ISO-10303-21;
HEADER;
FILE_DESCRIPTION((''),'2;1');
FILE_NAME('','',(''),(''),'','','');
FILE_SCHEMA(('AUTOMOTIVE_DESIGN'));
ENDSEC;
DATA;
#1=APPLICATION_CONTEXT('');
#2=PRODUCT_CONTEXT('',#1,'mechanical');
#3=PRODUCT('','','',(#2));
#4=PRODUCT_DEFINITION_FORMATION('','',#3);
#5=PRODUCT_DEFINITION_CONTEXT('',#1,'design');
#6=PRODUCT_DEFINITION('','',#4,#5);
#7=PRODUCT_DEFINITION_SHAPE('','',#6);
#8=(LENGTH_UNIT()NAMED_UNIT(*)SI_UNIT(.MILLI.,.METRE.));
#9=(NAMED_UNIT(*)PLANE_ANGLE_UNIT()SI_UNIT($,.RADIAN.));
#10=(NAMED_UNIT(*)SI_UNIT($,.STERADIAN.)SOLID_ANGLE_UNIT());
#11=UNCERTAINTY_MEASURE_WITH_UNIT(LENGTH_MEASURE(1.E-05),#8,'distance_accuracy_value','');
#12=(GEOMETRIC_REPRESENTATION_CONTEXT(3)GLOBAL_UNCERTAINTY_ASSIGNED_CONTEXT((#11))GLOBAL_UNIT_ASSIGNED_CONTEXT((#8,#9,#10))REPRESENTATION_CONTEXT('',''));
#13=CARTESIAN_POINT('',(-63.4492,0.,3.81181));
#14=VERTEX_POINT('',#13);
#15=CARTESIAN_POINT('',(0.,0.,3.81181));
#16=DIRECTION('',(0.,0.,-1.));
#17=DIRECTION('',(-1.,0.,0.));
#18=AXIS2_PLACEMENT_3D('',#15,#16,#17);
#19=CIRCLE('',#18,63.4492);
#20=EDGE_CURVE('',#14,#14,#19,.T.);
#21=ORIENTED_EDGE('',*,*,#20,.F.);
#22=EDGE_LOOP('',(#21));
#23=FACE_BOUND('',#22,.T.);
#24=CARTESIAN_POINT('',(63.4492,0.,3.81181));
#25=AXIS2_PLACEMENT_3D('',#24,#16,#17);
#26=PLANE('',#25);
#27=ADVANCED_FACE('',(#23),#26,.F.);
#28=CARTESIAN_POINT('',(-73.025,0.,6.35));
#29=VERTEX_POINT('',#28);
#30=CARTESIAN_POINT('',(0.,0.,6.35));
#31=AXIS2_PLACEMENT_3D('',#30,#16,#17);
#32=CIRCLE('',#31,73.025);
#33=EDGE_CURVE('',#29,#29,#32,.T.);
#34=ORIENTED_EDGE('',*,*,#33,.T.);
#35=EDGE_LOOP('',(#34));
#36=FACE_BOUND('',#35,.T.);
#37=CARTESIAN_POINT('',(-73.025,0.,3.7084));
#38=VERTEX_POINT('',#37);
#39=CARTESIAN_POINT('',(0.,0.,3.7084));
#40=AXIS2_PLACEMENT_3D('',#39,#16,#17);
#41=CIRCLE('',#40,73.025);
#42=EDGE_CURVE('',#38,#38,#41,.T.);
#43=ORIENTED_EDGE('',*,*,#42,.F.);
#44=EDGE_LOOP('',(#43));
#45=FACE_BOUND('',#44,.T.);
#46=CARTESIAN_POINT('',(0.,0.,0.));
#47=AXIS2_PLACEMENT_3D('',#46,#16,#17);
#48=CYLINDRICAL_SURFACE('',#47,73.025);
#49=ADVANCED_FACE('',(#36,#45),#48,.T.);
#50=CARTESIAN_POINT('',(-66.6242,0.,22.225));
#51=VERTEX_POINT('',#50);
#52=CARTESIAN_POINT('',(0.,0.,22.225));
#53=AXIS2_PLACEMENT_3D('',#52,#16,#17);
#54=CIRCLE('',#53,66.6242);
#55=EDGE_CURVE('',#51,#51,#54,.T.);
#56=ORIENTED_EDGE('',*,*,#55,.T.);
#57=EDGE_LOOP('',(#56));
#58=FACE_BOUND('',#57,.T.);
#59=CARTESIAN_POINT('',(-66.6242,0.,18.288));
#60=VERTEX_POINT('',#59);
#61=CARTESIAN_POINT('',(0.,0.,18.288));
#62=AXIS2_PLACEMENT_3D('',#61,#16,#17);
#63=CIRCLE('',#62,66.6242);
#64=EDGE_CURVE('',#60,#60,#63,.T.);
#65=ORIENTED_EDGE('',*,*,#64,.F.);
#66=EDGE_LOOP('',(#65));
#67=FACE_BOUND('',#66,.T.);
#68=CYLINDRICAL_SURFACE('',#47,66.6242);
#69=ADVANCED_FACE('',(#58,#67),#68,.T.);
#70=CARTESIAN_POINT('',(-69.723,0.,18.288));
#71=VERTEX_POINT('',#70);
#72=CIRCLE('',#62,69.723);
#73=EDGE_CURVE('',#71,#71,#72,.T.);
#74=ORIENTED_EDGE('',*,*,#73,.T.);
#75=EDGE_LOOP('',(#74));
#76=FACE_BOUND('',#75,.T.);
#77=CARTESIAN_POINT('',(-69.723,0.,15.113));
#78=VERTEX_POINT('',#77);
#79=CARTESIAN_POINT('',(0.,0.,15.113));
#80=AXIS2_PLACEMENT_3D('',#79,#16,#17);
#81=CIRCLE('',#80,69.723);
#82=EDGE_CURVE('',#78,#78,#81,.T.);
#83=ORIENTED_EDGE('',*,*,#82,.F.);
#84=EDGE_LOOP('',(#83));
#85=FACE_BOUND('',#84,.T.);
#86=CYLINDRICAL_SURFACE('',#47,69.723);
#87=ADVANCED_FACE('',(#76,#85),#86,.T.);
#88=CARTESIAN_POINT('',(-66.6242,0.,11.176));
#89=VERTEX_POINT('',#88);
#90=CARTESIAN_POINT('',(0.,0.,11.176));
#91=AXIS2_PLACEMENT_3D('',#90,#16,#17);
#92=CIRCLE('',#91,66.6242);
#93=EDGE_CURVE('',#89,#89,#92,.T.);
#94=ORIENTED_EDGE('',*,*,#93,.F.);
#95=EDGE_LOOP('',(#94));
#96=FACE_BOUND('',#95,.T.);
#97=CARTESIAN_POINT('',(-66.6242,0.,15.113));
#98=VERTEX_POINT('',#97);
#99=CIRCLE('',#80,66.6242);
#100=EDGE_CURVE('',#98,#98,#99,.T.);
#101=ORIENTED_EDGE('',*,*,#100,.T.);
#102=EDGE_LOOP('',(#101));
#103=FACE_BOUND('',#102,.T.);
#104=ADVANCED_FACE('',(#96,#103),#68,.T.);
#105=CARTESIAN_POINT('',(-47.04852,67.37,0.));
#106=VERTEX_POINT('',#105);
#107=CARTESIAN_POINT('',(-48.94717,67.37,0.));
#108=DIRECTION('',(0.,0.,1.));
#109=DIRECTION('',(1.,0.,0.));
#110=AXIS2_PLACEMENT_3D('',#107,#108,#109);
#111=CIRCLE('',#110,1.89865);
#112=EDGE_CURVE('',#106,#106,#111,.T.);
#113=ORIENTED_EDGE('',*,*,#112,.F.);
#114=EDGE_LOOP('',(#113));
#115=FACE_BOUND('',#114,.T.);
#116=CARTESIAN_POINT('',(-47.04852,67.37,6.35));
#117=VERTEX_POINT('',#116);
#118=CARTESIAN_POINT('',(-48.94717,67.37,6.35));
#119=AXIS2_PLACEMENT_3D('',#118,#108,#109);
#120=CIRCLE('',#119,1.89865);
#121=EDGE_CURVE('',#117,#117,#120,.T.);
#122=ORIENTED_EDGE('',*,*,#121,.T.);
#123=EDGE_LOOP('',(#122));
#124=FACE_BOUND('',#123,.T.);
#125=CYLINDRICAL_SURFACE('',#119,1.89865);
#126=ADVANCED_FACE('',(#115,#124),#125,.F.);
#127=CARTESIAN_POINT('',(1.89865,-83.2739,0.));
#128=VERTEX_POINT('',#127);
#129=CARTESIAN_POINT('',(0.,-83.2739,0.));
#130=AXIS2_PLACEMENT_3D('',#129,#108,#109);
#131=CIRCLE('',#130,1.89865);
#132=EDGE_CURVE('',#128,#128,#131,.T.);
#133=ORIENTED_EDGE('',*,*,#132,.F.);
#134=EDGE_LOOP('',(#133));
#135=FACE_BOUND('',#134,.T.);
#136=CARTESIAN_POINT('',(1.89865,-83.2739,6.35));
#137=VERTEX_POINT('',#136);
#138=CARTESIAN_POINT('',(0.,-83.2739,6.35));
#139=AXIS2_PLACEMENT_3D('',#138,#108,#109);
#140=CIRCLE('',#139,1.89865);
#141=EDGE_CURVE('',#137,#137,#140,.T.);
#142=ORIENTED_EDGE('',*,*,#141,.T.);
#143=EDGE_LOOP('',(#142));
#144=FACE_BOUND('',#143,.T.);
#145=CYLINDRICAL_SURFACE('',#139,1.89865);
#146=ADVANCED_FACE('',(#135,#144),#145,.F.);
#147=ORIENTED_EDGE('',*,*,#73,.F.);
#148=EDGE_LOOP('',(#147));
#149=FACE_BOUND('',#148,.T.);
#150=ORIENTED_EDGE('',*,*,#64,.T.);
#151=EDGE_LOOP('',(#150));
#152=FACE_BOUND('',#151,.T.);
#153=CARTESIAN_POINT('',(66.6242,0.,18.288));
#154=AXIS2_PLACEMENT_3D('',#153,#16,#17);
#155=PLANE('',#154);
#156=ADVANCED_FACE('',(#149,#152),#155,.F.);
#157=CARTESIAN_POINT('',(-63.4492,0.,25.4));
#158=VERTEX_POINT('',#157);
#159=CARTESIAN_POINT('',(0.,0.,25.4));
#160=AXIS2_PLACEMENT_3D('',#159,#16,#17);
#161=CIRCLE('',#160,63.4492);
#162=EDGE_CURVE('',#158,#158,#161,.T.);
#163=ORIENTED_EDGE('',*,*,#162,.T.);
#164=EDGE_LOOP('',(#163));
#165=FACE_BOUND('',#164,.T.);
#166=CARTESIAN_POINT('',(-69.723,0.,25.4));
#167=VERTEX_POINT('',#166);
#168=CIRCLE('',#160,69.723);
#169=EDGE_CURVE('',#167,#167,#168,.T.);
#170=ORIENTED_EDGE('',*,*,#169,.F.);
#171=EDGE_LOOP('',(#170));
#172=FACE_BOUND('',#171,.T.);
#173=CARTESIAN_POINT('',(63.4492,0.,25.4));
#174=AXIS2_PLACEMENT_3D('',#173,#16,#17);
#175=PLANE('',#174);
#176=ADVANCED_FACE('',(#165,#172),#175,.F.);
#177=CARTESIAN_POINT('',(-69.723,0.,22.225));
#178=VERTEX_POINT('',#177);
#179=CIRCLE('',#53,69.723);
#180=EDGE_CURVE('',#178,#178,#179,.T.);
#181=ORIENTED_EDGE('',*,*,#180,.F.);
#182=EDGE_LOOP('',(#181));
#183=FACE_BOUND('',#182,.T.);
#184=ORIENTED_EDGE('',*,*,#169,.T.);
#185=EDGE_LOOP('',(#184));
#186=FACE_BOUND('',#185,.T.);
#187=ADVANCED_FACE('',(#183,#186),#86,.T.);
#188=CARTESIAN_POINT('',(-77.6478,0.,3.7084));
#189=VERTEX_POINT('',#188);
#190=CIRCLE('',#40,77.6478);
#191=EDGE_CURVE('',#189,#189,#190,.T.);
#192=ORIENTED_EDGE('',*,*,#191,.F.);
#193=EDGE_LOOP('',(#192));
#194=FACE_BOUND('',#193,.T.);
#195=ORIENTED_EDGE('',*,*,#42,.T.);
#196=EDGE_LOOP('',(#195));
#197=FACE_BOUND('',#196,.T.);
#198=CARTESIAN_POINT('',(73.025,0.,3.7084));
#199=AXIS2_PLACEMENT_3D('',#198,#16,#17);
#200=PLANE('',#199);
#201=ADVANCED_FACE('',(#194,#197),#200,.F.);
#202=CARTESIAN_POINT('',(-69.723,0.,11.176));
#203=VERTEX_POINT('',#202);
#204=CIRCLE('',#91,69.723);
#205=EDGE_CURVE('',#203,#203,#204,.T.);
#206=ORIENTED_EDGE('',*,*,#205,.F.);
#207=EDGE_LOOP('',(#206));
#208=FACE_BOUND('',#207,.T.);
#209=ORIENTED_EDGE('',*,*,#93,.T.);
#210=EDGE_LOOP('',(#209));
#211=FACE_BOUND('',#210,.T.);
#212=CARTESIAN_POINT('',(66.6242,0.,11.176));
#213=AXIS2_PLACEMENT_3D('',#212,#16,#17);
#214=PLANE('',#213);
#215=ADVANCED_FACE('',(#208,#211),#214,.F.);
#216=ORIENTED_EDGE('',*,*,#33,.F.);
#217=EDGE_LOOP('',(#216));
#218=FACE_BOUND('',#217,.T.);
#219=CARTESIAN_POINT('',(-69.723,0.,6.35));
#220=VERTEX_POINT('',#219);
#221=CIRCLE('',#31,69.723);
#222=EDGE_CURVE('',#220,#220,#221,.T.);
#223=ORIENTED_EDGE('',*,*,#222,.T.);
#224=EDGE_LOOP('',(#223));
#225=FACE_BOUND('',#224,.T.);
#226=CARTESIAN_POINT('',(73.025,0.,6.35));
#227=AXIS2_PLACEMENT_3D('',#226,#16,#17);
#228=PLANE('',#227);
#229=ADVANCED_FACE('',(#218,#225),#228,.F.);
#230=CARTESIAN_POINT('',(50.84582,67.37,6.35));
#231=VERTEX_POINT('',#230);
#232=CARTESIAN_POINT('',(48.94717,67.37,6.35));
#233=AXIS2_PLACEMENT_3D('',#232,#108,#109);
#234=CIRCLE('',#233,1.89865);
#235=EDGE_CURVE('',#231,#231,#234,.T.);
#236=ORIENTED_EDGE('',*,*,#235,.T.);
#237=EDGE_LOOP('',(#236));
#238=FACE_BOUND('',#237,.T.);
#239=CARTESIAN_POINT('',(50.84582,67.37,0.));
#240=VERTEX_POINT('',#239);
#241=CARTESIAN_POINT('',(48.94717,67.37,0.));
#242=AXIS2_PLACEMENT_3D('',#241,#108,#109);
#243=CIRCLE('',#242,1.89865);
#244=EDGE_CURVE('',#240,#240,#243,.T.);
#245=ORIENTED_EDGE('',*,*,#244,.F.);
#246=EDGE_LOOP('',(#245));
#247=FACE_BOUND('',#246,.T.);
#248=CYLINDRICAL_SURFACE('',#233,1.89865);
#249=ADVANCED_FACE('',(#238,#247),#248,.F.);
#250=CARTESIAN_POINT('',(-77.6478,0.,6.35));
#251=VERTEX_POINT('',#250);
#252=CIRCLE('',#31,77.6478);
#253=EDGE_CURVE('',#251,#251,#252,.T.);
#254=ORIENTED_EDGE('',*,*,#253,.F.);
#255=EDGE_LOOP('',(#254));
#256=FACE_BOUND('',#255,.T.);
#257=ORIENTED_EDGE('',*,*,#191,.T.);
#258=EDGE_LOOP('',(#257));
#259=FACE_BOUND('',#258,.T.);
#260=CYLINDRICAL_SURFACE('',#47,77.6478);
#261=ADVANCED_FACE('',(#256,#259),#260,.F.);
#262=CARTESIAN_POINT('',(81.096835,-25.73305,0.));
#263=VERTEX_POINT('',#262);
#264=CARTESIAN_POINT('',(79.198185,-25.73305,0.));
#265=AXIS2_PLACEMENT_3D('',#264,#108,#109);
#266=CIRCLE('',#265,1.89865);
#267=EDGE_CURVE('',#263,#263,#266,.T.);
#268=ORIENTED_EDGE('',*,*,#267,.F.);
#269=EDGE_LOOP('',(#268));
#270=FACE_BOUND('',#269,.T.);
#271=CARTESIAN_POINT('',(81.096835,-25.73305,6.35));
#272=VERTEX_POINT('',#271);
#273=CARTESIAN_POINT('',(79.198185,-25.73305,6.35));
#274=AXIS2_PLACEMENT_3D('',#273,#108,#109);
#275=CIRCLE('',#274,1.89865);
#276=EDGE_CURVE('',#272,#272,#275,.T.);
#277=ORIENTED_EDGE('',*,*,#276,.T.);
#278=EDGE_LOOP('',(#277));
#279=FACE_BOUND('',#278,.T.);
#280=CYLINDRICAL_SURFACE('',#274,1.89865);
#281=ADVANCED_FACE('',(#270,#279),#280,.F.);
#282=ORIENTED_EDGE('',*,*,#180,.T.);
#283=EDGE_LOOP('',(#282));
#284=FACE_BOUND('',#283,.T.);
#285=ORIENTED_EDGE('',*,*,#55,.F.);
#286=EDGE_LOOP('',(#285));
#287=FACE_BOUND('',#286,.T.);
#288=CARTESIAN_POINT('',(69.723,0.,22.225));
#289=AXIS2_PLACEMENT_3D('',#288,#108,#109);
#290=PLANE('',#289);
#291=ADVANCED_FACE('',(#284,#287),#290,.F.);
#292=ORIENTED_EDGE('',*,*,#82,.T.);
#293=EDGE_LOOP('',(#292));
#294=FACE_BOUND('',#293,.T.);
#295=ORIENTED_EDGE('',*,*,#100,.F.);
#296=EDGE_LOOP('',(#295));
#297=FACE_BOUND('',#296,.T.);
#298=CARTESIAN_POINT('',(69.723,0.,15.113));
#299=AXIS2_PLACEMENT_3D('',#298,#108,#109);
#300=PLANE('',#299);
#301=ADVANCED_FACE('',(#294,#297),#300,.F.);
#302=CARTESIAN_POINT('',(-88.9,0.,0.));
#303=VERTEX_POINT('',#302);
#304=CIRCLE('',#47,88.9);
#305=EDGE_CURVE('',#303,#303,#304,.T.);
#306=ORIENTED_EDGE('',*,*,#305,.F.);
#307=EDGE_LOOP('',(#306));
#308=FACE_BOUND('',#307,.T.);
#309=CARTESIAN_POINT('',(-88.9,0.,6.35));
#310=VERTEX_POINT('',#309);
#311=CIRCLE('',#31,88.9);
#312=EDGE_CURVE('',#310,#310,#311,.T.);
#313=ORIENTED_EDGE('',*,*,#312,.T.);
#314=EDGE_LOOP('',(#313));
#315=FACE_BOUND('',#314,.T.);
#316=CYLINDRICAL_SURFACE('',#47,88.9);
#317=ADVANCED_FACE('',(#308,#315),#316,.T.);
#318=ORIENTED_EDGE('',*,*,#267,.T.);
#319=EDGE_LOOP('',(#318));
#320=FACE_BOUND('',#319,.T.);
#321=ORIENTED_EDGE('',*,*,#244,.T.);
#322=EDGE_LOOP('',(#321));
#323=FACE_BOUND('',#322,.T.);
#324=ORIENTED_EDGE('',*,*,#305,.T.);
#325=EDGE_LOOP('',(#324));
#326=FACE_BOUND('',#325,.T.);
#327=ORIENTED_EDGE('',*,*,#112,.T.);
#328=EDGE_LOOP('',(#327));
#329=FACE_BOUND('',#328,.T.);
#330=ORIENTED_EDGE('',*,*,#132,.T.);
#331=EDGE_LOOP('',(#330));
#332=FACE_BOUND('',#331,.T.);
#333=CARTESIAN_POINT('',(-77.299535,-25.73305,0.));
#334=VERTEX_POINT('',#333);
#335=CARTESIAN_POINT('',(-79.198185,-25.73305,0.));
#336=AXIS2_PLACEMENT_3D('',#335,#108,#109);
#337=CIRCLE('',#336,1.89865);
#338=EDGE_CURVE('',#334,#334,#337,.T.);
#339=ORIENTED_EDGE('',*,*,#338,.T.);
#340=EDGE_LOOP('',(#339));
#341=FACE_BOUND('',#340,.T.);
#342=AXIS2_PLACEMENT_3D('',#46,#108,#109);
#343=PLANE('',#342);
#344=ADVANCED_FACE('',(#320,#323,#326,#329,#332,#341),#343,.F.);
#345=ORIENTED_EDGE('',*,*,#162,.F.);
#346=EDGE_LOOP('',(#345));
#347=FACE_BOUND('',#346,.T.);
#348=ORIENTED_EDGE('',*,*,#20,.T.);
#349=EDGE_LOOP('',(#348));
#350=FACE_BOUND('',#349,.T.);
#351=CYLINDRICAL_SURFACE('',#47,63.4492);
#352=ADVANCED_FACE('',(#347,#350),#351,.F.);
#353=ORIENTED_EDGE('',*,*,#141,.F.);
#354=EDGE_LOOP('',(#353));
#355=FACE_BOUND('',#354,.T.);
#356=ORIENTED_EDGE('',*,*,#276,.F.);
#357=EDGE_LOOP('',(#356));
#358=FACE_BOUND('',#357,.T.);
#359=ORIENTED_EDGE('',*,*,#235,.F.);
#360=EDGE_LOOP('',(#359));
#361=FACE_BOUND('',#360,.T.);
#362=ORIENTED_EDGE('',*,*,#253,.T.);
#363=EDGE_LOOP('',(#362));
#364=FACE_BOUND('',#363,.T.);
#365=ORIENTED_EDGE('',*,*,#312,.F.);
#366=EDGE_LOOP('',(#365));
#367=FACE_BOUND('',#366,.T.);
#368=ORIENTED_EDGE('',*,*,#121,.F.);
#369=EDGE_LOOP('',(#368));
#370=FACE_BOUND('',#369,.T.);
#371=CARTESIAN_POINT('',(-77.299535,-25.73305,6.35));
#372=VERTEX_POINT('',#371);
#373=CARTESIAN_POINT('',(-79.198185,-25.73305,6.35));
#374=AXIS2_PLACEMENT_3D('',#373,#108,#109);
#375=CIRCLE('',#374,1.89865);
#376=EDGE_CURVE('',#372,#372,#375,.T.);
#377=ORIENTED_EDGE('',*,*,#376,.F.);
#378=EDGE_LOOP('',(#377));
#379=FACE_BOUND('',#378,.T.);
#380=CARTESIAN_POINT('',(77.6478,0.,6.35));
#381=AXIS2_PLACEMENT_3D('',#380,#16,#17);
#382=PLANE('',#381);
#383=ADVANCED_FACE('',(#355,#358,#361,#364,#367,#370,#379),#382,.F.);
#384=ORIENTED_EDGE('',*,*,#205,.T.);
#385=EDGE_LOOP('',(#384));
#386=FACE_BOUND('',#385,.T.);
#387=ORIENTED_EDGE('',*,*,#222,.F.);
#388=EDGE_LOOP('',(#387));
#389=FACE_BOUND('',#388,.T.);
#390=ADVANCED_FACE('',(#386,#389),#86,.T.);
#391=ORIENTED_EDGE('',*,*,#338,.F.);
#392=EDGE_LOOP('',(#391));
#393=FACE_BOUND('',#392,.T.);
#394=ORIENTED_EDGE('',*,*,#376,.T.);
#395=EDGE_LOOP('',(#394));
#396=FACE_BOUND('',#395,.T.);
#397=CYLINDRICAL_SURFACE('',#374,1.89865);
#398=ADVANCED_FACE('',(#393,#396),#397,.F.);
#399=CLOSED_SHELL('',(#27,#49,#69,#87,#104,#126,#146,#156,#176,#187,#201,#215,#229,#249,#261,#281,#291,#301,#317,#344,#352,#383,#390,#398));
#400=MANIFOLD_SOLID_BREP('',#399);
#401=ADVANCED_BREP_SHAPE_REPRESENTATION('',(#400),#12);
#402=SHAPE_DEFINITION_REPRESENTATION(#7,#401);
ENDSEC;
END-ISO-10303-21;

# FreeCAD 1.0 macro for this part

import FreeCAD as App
import Part
import Sketcher
from FreeCAD import Vector
Q = App.Units.Quantity

doc = App.newDocument("Part")
body = doc.addObject("PartDesign::Body", "Body")

sketch1 = body.newObject("Sketcher::SketchObject", "Sketch")
sketch1.AttachmentSupport = (doc.getObject("XZ_Plane"), [""])
sketch1.MapMode = "FlatFace"
sketch1.addGeometry(Part.LineSegment(Vector(88.9, 0, 0), Vector(0, 0, 0)), False)
sketch1.addGeometry(Part.LineSegment(Vector(0, 0, 0), Vector(0, 3.81181, 0)), False)
sketch1.addGeometry(Part.LineSegment(Vector(0, 3.81181, 0), Vector(63.4492, 3.81181, 0)), False)
sketch1.addGeometry(Part.LineSegment(Vector(63.4492, 3.81181, 0), Vector(63.4492, 25.4, 0)), False)
sketch1.addGeometry(Part.LineSegment(Vector(63.4492, 25.4, 0), Vector(69.723, 25.4, 0)), False)
sketch1.addGeometry(Part.LineSegment(Vector(69.723, 25.4, 0), Vector(69.723, 22.225, 0)), False)
sketch1.addGeometry(Part.LineSegment(Vector(69.723, 22.225, 0), Vector(66.6242, 22.225, 0)), False)
sketch1.addGeometry(Part.LineSegment(Vector(66.6242, 22.225, 0), Vector(66.6242, 18.288, 0)), False)
sketch1.addGeometry(Part.LineSegment(Vector(66.6242, 18.288, 0), Vector(69.723, 18.288, 0)), False)
sketch1.addGeometry(Part.LineSegment(Vector(69.723, 18.288, 0), Vector(69.723, 15.113, 0)), False)
sketch1.addGeometry(Part.LineSegment(Vector(69.723, 15.113, 0), Vector(66.6242, 15.113, 0)), False)
sketch1.addGeometry(Part.LineSegment(Vector(66.6242, 15.113, 0), Vector(66.6242, 11.176, 0)), False)
sketch1.addGeometry(Part.LineSegment(Vector(66.6242, 11.176, 0), Vector(69.723, 11.176, 0)), False)
sketch1.addGeometry(Part.LineSegment(Vector(69.723, 11.176, 0), Vector(69.723, 6.35, 0)), False)
sketch1.addGeometry(Part.LineSegment(Vector(69.723, 6.35, 0), Vector(73.025, 6.35, 0)), False)
sketch1.addGeometry(Part.LineSegment(Vector(73.025, 6.35, 0), Vector(73.025, 3.7084, 0)), False)
sketch1.addGeometry(Part.LineSegment(Vector(73.025, 3.7084, 0), Vector(77.6478, 3.7084, 0)), False)
sketch1.addGeometry(Part.LineSegment(Vector(77.6478, 3.7084, 0), Vector(77.6478, 6.35, 0)), False)
sketch1.addGeometry(Part.LineSegment(Vector(77.6478, 6.35, 0), Vector(88.9, 6.35, 0)), False)
sketch1.addGeometry(Part.LineSegment(Vector(88.9, 6.35, 0), Vector(88.9, 0, 0)), False)
sketch1.addConstraint(Sketcher.Constraint("Coincident", 0, 2, 1, 1))
sketch1.addConstraint(Sketcher.Constraint("Coincident", 1, 2, 2, 1))
sketch1.addConstraint(Sketcher.Constraint("Coincident", 2, 2, 3, 1))
sketch1.addConstraint(Sketcher.Constraint("Coincident", 3, 2, 4, 1))
sketch1.addConstraint(Sketcher.Constraint("Coincident", 4, 2, 5, 1))
sketch1.addConstraint(Sketcher.Constraint("Coincident", 5, 2, 6, 1))
sketch1.addConstraint(Sketcher.Constraint("Coincident", 6, 2, 7, 1))
sketch1.addConstraint(Sketcher.Constraint("Coincident", 7, 2, 8, 1))
sketch1.addConstraint(Sketcher.Constraint("Coincident", 8, 2, 9, 1))
sketch1.addConstraint(Sketcher.Constraint("Coincident", 9, 2, 10, 1))
sketch1.addConstraint(Sketcher.Constraint("Coincident", 10, 2, 11, 1))
sketch1.addConstraint(Sketcher.Constraint("Coincident", 11, 2, 12, 1))
sketch1.addConstraint(Sketcher.Constraint("Coincident", 12, 2, 13, 1))
sketch1.addConstraint(Sketcher.Constraint("Coincident", 13, 2, 14, 1))
sketch1.addConstraint(Sketcher.Constraint("Coincident", 14, 2, 15, 1))
sketch1.addConstraint(Sketcher.Constraint("Coincident", 15, 2, 16, 1))
sketch1.addConstraint(Sketcher.Constraint("Coincident", 16, 2, 17, 1))
sketch1.addConstraint(Sketcher.Constraint("Coincident", 17, 2, 18, 1))
sketch1.addConstraint(Sketcher.Constraint("Coincident", 18, 2, 19, 1))
sketch1.addConstraint(Sketcher.Constraint("Coincident", 19, 2, 0, 1))
sketch1.addConstraint(Sketcher.Constraint("Horizontal", 0))
sketch1.addConstraint(Sketcher.Constraint("Vertical", 1))
sketch1.addConstraint(Sketcher.Constraint("Horizontal", 2))
sketch1.addConstraint(Sketcher.Constraint("Vertical", 3))
sketch1.addConstraint(Sketcher.Constraint("Horizontal", 4))
sketch1.addConstraint(Sketcher.Constraint("Vertical", 5))
sketch1.addConstraint(Sketcher.Constraint("Horizontal", 6))
sketch1.addConstraint(Sketcher.Constraint("Vertical", 7))
sketch1.addConstraint(Sketcher.Constraint("Horizontal", 8))
sketch1.addConstraint(Sketcher.Constraint("Vertical", 9))
sketch1.addConstraint(Sketcher.Constraint("Horizontal", 10))
sketch1.addConstraint(Sketcher.Constraint("Vertical", 11))
sketch1.addConstraint(Sketcher.Constraint("Horizontal", 12))
sketch1.addConstraint(Sketcher.Constraint("Vertical", 13))
sketch1.addConstraint(Sketcher.Constraint("Horizontal", 14))
sketch1.addConstraint(Sketcher.Constraint("Vertical", 15))
sketch1.addConstraint(Sketcher.Constraint("Horizontal", 16))
sketch1.addConstraint(Sketcher.Constraint("Vertical", 17))
sketch1.addConstraint(Sketcher.Constraint("Horizontal", 18))
sketch1.addConstraint(Sketcher.Constraint("Vertical", 19))
sketch1.addConstraint(Sketcher.Constraint("Coincident", 0, 2, -1, 1))
sketch1.addConstraint(Sketcher.Constraint("Horizontal", 14, 2, 17, 2))
sketch1.addConstraint(Sketcher.Constraint("Vertical", 5, 2, 8, 2))
sketch1.addConstraint(Sketcher.Constraint("Vertical", 7, 2, 10, 2))
sketch1.addConstraint(Sketcher.Constraint("Vertical", 9, 2, 12, 2))
sketch1.addConstraint(Sketcher.Constraint("Equal", 5, 9))
sketch1.addConstraint(Sketcher.Constraint("Equal", 7, 11))
sketch1.addConstraint(Sketcher.Constraint("DistanceX", 0, 2, 0, 1, Q("3.5 in")))
sketch1.addConstraint(Sketcher.Constraint("DistanceY", -1, 1, 3, 2, Q("1 in")))
sketch1.addConstraint(Sketcher.Constraint("DistanceX", 14, 1, 14, 2, Q("0.13 in")))
sketch1.addConstraint(Sketcher.Constraint("DistanceY", 13, 2, 13, 1, Q("0.19 in")))
sketch1.addConstraint(Sketcher.Constraint("DistanceY", 19, 2, 19, 1, Q("0.25 in")))
sketch1.addConstraint(Sketcher.Constraint("DistanceX", 2, 1, 2, 2, Q("2.498 in")))
sketch1.addConstraint(Sketcher.Constraint("DistanceX", 4, 1, 4, 2, Q("0.247 in")))
sketch1.addConstraint(Sketcher.Constraint("DistanceX", 6, 2, 6, 1, Q("0.122 in")))
sketch1.addConstraint(Sketcher.Constraint("DistanceX", 16, 1, 16, 2, Q("0.182 in")))
sketch1.addConstraint(Sketcher.Constraint("DistanceY", 5, 2, 5, 1, Q("0.125 in")))
sketch1.addConstraint(Sketcher.Constraint("DistanceY", 15, 2, 15, 1, Q("0.104 in")))
sketch1.addConstraint(Sketcher.Constraint("DistanceY", 1, 1, 1, 2, Q("3.81181 mm")))
revolution = body.newObject("PartDesign::Revolution", "Revolution")
revolution.Profile = sketch1
revolution.ReferenceAxis = (sketch1, ["V_Axis"])
revolution.Angle = 360

sketch2 = body.newObject("Sketcher::SketchObject", "Sketch001")
sketch2.AttachmentSupport = (doc.getObject("XY_Plane"), [""])
sketch2.MapMode = "FlatFace"
sketch2.AttachmentOffset = App.Placement(Vector(0, 0, 0.25 * 25.4), App.Rotation())
sketch2.addGeometry(Part.Circle(Vector(0, -83.2739, 0), Vector(0, 0, 1), 1.89865), False)
sketch2.addGeometry(Part.Circle(Vector(79.198185, -25.73305, 0), Vector(0, 0, 1), 1.89865), False)
sketch2.addGeometry(Part.Circle(Vector(48.94717, 67.37, 0), Vector(0, 0, 1), 1.89865), False)
sketch2.addGeometry(Part.Circle(Vector(-79.198185, -25.73305, 0), Vector(0, 0, 1), 1.89865), False)
sketch2.addGeometry(Part.Circle(Vector(-48.94717, 67.37, 0), Vector(0, 0, 1), 1.89865), False)
sketch2.addConstraint(Sketcher.Constraint("Equal", 0, 1))
sketch2.addConstraint(Sketcher.Constraint("Equal", 1, 2))
sketch2.addConstraint(Sketcher.Constraint("Equal", 2, 3))
sketch2.addConstraint(Sketcher.Constraint("Equal", 3, 4))
sketch2.addConstraint(Sketcher.Constraint("Symmetric", 1, 3, 3, 3, -2))
sketch2.addConstraint(Sketcher.Constraint("Symmetric", 2, 3, 4, 3, -2))
sketch2.addConstraint(Sketcher.Constraint("PointOnObject", 0, 3, -2))
sketch2.addConstraint(Sketcher.Constraint("Diameter", 0, Q("0.1495 in")))
sketch2.addConstraint(Sketcher.Constraint("DistanceY", 0, 3, -1, 1, Q("3.2785 in")))
sketch2.addConstraint(Sketcher.Constraint("DistanceY", -1, 1, 2, 3, Q("67.37 mm")))
sketch2.addConstraint(Sketcher.Constraint("DistanceY", 1, 3, -1, 1, Q("25.73305 mm")))
sketch2.addConstraint(Sketcher.Constraint("DistanceX", -1, 1, 2, 3, Q("48.94717 mm")))
sketch2.addConstraint(Sketcher.Constraint("DistanceX", 3, 3, 1, 3, Q("158.39637 mm")))
doc.recompute()
hole = body.newObject("PartDesign::Hole", "Hole")
hole.Profile = sketch2
hole.ThreadType = "None"
hole.Diameter = Q("0.1495 in")
hole.DepthType = "Dimension"
hole.Depth = Q("1 in")
hole.DrillPoint = "Angled"
hole.DrillPointAngle = 118

doc.recompute()
